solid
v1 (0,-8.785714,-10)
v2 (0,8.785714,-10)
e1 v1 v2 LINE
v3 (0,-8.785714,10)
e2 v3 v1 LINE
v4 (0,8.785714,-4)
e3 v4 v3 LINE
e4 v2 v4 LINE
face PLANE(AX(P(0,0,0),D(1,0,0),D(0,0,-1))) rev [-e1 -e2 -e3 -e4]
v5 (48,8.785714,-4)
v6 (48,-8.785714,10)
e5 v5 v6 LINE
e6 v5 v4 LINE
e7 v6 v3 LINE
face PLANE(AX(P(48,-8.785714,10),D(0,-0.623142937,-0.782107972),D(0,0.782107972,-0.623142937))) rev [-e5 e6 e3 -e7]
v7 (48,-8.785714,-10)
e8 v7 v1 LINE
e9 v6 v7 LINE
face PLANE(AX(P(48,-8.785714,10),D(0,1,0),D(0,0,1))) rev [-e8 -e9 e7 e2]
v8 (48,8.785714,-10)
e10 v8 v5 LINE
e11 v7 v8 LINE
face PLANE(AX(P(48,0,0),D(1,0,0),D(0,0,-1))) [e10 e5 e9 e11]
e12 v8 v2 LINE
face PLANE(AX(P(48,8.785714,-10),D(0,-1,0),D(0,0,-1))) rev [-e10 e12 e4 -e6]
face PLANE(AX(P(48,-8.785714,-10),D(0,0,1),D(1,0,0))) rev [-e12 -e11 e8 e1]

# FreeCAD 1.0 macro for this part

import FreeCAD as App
import Part
import Sketcher
from FreeCAD import Vector
Q = App.Units.Quantity


def add_polygon(sketch, points):
    """Adds a closed chain of lines whose ends are joined by coincident constraints."""
    first, n = sketch.GeometryCount, len(points)
    for a, b in zip(points, points[1:] + points[:1]):
        sketch.addGeometry(Part.LineSegment(App.Vector(*a, 0), App.Vector(*b, 0)), False)
    for i in range(n):
        sketch.addConstraint(Sketcher.Constraint("Coincident", first + i, 2, first + (i + 1) % n, 1))

doc = App.newDocument("Part")
body = doc.addObject("PartDesign::Body", "Body")

# Sketch on YZ plane
sketch1 = body.newObject("Sketcher::SketchObject", "Sketch")
sketch1.AttachmentSupport = (doc.getObject("YZ_Plane"), [""])
sketch1.MapMode = "FlatFace"
add_polygon(sketch1, [(9, -10), (9, -4), (-9, 10), (-9, -10)])  # lines 0-3
sketch1.addConstraint([
    Sketcher.Constraint("Vertical", 0),
    Sketcher.Constraint("Vertical", 2),
    Sketcher.Constraint("Horizontal", 3),
    Sketcher.Constraint("Symmetric", 1, 2, 3, 2, -1, 1),
    Sketcher.Constraint("DistanceY", 0, 1, 0, 2, Q("6 mm")),
    Sketcher.Constraint("DistanceY", 2, 2, 2, 1, Q("20 mm")),
    Sketcher.Constraint("DistanceX", 3, 1, 3, 2, Q("17.571429 mm")),
])
pad1 = body.newObject("PartDesign::Pad", "Pad")
pad1.Profile = sketch1
pad1.Length = 48

doc.recompute()
